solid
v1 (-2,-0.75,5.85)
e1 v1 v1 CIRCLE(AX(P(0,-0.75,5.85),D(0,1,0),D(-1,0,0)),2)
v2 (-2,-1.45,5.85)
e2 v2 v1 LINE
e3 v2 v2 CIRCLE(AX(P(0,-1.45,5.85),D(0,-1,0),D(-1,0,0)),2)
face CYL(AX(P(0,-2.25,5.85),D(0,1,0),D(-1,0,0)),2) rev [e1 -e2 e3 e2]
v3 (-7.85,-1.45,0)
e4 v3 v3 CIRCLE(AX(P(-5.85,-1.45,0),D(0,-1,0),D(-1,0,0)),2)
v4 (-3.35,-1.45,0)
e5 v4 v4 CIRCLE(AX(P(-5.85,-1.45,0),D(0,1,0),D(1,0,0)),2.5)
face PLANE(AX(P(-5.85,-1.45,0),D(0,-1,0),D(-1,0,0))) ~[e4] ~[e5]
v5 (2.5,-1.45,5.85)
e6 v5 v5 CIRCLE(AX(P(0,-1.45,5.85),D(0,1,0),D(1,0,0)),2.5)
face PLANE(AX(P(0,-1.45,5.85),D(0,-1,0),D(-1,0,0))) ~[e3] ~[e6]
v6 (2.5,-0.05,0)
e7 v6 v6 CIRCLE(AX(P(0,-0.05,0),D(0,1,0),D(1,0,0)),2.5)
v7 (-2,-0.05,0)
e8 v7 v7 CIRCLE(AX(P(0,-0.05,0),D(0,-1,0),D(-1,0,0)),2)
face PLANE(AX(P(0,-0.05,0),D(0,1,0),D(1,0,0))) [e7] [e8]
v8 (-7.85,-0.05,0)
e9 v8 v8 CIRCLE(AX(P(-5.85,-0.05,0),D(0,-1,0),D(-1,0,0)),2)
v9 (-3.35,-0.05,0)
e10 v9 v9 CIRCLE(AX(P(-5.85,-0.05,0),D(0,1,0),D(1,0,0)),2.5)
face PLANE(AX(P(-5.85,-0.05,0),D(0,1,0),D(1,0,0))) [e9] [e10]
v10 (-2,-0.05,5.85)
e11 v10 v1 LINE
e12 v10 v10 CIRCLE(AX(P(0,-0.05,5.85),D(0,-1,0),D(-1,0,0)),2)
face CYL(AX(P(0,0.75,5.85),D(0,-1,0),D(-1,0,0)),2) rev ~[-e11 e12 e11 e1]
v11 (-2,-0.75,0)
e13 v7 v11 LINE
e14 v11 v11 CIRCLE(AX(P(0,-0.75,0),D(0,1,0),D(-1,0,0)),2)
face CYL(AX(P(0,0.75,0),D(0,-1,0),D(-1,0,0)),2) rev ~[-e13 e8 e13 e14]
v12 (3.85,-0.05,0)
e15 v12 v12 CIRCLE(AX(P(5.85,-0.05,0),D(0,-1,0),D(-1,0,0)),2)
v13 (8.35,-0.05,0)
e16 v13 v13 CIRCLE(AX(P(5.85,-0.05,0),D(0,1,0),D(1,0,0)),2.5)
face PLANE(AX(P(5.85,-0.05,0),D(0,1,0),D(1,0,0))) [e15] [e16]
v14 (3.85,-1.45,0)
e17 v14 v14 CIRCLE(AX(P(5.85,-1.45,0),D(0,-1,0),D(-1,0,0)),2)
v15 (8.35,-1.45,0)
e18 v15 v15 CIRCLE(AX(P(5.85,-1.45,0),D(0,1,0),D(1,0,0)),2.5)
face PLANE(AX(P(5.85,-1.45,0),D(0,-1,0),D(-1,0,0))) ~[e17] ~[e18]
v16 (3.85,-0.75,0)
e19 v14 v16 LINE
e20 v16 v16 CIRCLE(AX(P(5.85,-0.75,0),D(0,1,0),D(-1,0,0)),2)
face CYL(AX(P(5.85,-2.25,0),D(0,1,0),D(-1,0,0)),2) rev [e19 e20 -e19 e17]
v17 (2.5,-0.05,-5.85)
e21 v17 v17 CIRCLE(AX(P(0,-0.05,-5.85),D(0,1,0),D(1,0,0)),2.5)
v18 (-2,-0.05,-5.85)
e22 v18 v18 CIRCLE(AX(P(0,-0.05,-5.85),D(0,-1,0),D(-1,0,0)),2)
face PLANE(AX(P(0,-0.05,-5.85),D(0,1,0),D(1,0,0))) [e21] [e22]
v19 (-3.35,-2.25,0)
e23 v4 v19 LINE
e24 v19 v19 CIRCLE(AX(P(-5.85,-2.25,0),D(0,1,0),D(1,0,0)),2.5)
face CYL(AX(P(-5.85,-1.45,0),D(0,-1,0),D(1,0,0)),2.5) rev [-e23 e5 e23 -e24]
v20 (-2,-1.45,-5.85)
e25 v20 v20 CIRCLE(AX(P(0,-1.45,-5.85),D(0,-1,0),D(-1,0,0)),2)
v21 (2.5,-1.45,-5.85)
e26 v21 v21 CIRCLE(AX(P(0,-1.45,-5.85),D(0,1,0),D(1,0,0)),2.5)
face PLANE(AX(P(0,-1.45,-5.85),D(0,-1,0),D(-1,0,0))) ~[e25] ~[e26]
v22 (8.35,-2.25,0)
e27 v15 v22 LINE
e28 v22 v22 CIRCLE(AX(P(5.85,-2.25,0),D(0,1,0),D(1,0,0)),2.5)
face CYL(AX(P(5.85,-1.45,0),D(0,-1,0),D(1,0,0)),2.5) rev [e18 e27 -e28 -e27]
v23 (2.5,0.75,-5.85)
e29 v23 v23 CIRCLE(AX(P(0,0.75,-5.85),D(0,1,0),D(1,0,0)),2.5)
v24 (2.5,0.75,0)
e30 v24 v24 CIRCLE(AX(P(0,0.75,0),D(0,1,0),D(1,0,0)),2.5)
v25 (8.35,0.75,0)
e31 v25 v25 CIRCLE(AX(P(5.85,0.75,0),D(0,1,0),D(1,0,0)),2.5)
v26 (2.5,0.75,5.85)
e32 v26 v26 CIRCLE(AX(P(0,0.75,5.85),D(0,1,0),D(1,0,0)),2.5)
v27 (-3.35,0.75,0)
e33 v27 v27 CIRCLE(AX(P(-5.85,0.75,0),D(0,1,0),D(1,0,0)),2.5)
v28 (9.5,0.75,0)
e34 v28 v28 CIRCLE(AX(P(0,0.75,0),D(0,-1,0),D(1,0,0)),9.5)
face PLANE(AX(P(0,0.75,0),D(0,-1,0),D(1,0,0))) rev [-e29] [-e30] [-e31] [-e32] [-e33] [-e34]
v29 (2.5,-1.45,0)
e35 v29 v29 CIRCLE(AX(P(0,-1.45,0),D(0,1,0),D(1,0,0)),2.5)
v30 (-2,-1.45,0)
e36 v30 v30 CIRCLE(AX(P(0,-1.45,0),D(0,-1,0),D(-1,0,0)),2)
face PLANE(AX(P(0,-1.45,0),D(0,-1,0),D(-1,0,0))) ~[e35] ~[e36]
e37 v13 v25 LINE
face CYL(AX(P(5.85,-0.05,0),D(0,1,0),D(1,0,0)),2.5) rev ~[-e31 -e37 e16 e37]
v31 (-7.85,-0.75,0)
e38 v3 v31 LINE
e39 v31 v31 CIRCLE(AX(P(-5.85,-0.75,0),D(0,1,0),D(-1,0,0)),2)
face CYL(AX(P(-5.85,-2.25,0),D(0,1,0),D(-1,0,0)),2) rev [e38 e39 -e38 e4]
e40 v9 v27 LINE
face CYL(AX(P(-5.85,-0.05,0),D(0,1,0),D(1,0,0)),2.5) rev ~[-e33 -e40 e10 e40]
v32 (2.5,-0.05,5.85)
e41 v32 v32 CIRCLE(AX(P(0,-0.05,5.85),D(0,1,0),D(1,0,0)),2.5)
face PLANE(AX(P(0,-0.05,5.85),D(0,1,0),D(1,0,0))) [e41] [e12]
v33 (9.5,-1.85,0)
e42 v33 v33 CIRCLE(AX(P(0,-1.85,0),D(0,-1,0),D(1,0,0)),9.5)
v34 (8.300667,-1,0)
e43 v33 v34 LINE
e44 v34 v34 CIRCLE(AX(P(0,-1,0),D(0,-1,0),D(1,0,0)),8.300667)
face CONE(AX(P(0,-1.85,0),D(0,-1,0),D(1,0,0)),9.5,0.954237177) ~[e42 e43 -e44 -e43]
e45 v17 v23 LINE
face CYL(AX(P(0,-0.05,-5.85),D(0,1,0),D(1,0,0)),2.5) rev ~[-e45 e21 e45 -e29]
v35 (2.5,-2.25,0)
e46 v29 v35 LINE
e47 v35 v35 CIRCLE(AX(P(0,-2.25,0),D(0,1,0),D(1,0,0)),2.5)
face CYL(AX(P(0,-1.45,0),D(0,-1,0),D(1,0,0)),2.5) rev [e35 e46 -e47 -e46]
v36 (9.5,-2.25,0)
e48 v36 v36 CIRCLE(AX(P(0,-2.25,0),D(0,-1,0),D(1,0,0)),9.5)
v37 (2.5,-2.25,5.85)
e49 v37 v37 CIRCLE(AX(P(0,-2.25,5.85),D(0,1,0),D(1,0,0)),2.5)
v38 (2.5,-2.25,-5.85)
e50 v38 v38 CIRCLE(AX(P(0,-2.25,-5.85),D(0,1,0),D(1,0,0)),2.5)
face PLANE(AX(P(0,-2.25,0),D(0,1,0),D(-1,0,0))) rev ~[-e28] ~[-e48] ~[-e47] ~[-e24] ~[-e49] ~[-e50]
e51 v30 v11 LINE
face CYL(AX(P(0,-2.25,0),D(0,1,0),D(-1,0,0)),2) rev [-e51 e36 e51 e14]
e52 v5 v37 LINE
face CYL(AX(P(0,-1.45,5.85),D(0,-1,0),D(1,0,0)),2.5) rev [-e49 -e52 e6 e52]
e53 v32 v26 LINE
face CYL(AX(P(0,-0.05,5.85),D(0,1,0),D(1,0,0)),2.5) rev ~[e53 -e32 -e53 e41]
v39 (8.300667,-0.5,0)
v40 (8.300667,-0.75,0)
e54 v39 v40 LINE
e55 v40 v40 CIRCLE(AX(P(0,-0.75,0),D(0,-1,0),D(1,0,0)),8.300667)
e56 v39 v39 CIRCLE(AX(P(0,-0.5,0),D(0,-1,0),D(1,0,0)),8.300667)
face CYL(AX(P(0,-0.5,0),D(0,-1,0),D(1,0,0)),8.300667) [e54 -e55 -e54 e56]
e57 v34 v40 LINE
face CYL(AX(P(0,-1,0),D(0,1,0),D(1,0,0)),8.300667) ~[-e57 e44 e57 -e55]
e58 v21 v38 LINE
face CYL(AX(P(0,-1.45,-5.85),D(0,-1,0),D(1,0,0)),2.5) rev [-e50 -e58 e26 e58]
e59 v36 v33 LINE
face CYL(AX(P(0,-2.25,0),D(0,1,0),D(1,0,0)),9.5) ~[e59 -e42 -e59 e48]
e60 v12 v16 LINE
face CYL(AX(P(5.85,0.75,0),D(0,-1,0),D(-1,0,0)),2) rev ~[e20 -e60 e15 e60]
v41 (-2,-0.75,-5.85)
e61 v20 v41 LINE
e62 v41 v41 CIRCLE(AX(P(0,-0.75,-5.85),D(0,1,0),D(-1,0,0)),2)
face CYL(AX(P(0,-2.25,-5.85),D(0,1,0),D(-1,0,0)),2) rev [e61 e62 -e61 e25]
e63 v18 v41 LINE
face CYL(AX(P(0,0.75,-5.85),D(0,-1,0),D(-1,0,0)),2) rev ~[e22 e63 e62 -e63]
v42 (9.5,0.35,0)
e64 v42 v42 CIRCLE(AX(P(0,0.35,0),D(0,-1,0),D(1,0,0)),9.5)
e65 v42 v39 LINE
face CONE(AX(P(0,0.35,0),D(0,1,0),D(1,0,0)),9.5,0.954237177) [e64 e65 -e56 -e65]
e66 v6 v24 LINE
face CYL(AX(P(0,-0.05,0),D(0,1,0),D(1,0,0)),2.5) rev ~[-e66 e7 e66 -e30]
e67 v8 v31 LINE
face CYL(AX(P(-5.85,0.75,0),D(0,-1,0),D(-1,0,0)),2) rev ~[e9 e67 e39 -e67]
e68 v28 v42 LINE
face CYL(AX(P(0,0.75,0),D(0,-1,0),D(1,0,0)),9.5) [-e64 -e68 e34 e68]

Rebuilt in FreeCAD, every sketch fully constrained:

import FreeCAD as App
import Part
import Sketcher

V = App.Vector
Q = App.Units.Quantity

doc = App.newDocument("Part")
body = doc.addObject("PartDesign::Body", "Body")

# Sketch on XY plane
sketch1 = body.newObject("Sketcher::SketchObject", "Sketch")
sketch1.AttachmentSupport = (doc.getObject("XY_Plane"), [""])
sketch1.MapMode = "FlatFace"
sketch1.addGeometry(Part.LineSegment(V(9.5, 0.35, 0), V(9.5, 0.75, 0)), False)
sketch1.addGeometry(Part.LineSegment(V(9.5, 0.75, 0), V(0, 0.75, 0)), False)
sketch1.addGeometry(Part.LineSegment(V(0, 0.75, 0), V(0, -0.75, 0)), False)
sketch1.addGeometry(Part.LineSegment(V(0, -0.75, 0), V(8.3, -0.75, 0)), False)
sketch1.addGeometry(Part.LineSegment(V(8.3, -0.75, 0), V(8.3, -0.5, 0)), False)
sketch1.addGeometry(Part.LineSegment(V(8.3, -0.5, 0), V(9.5, 0.35, 0)), False)
sketch1.addConstraint(Sketcher.Constraint("Coincident", 0, 2, 1, 1))
sketch1.addConstraint(Sketcher.Constraint("Coincident", 1, 2, 2, 1))
sketch1.addConstraint(Sketcher.Constraint("Coincident", 2, 2, 3, 1))
sketch1.addConstraint(Sketcher.Constraint("Coincident", 3, 2, 4, 1))
sketch1.addConstraint(Sketcher.Constraint("Coincident", 4, 2, 5, 1))
sketch1.addConstraint(Sketcher.Constraint("Coincident", 5, 2, 0, 1))
sketch1.addConstraint(Sketcher.Constraint("Vertical", 0))
sketch1.addConstraint(Sketcher.Constraint("Horizontal", 1))
sketch1.addConstraint(Sketcher.Constraint("Vertical", 2))
sketch1.addConstraint(Sketcher.Constraint("Horizontal", 3))
sketch1.addConstraint(Sketcher.Constraint("Vertical", 4))
sketch1.addConstraint(Sketcher.Constraint("Symmetric", 1, 2, 2, 2, -1, 1))
sketch1.addConstraint(Sketcher.Constraint("DistanceX", 1, 2, 1, 1, Q("9.5 mm")))
sketch1.addConstraint(Sketcher.Constraint("DistanceY", 0, 1, 0, 2, Q("0.4 mm")))
sketch1.addConstraint(Sketcher.Constraint("DistanceY", 2, 2, 2, 1, Q("1.5 mm")))
sketch1.addConstraint(Sketcher.Constraint("DistanceY", 4, 1, 4, 2, Q("0.25 mm")))
sketch1.addConstraint(Sketcher.Constraint("Distance", 5, Q("1.47 mm")))
revolution = body.newObject("PartDesign::Revolution", "Revolution")
revolution.Profile = sketch1
revolution.ReferenceAxis = (sketch1, ["V_Axis"])
revolution.Angle = 360

# Sketch on XZ plane
sketch2 = body.newObject("Sketcher::SketchObject", "Sketch001")
sketch2.AttachmentSupport = (doc.getObject("XZ_Plane"), [""])
sketch2.MapMode = "FlatFace"
sketch2.AttachmentOffset = App.Placement(V(0, 0, -0.75), App.Rotation())
sketch2.addGeometry(Part.Circle(V(0, 0, 0), V(0, 0, 1), 2), False)
sketch2.addGeometry(Part.Circle(V(-5.8, 0, 0), V(0, 0, 1), 2), False)
sketch2.addGeometry(Part.Circle(V(5.8, 0, 0), V(0, 0, 1), 2), False)
sketch2.addGeometry(Part.Circle(V(0, -5.8, 0), V(0, 0, 1), 2), False)
sketch2.addGeometry(Part.Circle(V(0, 5.8, 0), V(0, 0, 1), 2), False)
sketch2.addConstraint(Sketcher.Constraint("Coincident", 0, 3, -1, 1))
sketch2.addConstraint(Sketcher.Constraint("Equal", 0, 1))
sketch2.addConstraint(Sketcher.Constraint("Equal", 1, 2))
sketch2.addConstraint(Sketcher.Constraint("Equal", 2, 3))
sketch2.addConstraint(Sketcher.Constraint("Equal", 3, 4))
sketch2.addConstraint(Sketcher.Constraint("Symmetric", 1, 3, 2, 3, -1, 1))
sketch2.addConstraint(Sketcher.Constraint("Symmetric", 3, 3, 4, 3, -1, 1))
sketch2.addConstraint(Sketcher.Constraint("PointOnObject", 1, 3, -1))
sketch2.addConstraint(Sketcher.Constraint("PointOnObject", 3, 3, -2))
sketch2.addConstraint(Sketcher.Constraint("Diameter", 0, Q("4 mm")))
sketch2.addConstraint(Sketcher.Constraint("DistanceX", 1, 3, 2, 3, Q("11.7 mm")))
sketch2.addConstraint(Sketcher.Constraint("DistanceY", 3, 3, 4, 3, Q("11.7 mm")))
doc.recompute()
hole = body.newObject("PartDesign::Hole", "Hole")
hole.Profile = sketch2
hole.ThreadType = "None"
hole.Diameter = 4
hole.DepthType = "Dimension"
hole.Depth = 1.5
hole.DrillPoint = "Angled"
hole.DrillPointAngle = 118
hole.HoleCutType = "Counterbore"
hole.HoleCutDiameter = 5
hole.HoleCutDepth = 0.8
hole.Reversed = True
body2 = doc.addObject("PartDesign::Body", "Body001")
doc.recompute()

body2.BaseFeature = body
doc.recompute()

mirroring = doc.addObject("Part::Mirroring", "Mirroring")
mirroring.Source = body
mirroring.Base = V(0, -0.75, 0)
mirroring.Normal = V(0, 1, 0)
body3 = doc.addObject("PartDesign::Body", "Body002")
body3.BaseFeature = mirroring
boolean = body2.newObject("PartDesign::Boolean", "Boolean")
boolean.Type = "Fuse"
boolean.addObjects([body3])
doc.recompute()
mirroring.Visibility = False

doc.recompute()
